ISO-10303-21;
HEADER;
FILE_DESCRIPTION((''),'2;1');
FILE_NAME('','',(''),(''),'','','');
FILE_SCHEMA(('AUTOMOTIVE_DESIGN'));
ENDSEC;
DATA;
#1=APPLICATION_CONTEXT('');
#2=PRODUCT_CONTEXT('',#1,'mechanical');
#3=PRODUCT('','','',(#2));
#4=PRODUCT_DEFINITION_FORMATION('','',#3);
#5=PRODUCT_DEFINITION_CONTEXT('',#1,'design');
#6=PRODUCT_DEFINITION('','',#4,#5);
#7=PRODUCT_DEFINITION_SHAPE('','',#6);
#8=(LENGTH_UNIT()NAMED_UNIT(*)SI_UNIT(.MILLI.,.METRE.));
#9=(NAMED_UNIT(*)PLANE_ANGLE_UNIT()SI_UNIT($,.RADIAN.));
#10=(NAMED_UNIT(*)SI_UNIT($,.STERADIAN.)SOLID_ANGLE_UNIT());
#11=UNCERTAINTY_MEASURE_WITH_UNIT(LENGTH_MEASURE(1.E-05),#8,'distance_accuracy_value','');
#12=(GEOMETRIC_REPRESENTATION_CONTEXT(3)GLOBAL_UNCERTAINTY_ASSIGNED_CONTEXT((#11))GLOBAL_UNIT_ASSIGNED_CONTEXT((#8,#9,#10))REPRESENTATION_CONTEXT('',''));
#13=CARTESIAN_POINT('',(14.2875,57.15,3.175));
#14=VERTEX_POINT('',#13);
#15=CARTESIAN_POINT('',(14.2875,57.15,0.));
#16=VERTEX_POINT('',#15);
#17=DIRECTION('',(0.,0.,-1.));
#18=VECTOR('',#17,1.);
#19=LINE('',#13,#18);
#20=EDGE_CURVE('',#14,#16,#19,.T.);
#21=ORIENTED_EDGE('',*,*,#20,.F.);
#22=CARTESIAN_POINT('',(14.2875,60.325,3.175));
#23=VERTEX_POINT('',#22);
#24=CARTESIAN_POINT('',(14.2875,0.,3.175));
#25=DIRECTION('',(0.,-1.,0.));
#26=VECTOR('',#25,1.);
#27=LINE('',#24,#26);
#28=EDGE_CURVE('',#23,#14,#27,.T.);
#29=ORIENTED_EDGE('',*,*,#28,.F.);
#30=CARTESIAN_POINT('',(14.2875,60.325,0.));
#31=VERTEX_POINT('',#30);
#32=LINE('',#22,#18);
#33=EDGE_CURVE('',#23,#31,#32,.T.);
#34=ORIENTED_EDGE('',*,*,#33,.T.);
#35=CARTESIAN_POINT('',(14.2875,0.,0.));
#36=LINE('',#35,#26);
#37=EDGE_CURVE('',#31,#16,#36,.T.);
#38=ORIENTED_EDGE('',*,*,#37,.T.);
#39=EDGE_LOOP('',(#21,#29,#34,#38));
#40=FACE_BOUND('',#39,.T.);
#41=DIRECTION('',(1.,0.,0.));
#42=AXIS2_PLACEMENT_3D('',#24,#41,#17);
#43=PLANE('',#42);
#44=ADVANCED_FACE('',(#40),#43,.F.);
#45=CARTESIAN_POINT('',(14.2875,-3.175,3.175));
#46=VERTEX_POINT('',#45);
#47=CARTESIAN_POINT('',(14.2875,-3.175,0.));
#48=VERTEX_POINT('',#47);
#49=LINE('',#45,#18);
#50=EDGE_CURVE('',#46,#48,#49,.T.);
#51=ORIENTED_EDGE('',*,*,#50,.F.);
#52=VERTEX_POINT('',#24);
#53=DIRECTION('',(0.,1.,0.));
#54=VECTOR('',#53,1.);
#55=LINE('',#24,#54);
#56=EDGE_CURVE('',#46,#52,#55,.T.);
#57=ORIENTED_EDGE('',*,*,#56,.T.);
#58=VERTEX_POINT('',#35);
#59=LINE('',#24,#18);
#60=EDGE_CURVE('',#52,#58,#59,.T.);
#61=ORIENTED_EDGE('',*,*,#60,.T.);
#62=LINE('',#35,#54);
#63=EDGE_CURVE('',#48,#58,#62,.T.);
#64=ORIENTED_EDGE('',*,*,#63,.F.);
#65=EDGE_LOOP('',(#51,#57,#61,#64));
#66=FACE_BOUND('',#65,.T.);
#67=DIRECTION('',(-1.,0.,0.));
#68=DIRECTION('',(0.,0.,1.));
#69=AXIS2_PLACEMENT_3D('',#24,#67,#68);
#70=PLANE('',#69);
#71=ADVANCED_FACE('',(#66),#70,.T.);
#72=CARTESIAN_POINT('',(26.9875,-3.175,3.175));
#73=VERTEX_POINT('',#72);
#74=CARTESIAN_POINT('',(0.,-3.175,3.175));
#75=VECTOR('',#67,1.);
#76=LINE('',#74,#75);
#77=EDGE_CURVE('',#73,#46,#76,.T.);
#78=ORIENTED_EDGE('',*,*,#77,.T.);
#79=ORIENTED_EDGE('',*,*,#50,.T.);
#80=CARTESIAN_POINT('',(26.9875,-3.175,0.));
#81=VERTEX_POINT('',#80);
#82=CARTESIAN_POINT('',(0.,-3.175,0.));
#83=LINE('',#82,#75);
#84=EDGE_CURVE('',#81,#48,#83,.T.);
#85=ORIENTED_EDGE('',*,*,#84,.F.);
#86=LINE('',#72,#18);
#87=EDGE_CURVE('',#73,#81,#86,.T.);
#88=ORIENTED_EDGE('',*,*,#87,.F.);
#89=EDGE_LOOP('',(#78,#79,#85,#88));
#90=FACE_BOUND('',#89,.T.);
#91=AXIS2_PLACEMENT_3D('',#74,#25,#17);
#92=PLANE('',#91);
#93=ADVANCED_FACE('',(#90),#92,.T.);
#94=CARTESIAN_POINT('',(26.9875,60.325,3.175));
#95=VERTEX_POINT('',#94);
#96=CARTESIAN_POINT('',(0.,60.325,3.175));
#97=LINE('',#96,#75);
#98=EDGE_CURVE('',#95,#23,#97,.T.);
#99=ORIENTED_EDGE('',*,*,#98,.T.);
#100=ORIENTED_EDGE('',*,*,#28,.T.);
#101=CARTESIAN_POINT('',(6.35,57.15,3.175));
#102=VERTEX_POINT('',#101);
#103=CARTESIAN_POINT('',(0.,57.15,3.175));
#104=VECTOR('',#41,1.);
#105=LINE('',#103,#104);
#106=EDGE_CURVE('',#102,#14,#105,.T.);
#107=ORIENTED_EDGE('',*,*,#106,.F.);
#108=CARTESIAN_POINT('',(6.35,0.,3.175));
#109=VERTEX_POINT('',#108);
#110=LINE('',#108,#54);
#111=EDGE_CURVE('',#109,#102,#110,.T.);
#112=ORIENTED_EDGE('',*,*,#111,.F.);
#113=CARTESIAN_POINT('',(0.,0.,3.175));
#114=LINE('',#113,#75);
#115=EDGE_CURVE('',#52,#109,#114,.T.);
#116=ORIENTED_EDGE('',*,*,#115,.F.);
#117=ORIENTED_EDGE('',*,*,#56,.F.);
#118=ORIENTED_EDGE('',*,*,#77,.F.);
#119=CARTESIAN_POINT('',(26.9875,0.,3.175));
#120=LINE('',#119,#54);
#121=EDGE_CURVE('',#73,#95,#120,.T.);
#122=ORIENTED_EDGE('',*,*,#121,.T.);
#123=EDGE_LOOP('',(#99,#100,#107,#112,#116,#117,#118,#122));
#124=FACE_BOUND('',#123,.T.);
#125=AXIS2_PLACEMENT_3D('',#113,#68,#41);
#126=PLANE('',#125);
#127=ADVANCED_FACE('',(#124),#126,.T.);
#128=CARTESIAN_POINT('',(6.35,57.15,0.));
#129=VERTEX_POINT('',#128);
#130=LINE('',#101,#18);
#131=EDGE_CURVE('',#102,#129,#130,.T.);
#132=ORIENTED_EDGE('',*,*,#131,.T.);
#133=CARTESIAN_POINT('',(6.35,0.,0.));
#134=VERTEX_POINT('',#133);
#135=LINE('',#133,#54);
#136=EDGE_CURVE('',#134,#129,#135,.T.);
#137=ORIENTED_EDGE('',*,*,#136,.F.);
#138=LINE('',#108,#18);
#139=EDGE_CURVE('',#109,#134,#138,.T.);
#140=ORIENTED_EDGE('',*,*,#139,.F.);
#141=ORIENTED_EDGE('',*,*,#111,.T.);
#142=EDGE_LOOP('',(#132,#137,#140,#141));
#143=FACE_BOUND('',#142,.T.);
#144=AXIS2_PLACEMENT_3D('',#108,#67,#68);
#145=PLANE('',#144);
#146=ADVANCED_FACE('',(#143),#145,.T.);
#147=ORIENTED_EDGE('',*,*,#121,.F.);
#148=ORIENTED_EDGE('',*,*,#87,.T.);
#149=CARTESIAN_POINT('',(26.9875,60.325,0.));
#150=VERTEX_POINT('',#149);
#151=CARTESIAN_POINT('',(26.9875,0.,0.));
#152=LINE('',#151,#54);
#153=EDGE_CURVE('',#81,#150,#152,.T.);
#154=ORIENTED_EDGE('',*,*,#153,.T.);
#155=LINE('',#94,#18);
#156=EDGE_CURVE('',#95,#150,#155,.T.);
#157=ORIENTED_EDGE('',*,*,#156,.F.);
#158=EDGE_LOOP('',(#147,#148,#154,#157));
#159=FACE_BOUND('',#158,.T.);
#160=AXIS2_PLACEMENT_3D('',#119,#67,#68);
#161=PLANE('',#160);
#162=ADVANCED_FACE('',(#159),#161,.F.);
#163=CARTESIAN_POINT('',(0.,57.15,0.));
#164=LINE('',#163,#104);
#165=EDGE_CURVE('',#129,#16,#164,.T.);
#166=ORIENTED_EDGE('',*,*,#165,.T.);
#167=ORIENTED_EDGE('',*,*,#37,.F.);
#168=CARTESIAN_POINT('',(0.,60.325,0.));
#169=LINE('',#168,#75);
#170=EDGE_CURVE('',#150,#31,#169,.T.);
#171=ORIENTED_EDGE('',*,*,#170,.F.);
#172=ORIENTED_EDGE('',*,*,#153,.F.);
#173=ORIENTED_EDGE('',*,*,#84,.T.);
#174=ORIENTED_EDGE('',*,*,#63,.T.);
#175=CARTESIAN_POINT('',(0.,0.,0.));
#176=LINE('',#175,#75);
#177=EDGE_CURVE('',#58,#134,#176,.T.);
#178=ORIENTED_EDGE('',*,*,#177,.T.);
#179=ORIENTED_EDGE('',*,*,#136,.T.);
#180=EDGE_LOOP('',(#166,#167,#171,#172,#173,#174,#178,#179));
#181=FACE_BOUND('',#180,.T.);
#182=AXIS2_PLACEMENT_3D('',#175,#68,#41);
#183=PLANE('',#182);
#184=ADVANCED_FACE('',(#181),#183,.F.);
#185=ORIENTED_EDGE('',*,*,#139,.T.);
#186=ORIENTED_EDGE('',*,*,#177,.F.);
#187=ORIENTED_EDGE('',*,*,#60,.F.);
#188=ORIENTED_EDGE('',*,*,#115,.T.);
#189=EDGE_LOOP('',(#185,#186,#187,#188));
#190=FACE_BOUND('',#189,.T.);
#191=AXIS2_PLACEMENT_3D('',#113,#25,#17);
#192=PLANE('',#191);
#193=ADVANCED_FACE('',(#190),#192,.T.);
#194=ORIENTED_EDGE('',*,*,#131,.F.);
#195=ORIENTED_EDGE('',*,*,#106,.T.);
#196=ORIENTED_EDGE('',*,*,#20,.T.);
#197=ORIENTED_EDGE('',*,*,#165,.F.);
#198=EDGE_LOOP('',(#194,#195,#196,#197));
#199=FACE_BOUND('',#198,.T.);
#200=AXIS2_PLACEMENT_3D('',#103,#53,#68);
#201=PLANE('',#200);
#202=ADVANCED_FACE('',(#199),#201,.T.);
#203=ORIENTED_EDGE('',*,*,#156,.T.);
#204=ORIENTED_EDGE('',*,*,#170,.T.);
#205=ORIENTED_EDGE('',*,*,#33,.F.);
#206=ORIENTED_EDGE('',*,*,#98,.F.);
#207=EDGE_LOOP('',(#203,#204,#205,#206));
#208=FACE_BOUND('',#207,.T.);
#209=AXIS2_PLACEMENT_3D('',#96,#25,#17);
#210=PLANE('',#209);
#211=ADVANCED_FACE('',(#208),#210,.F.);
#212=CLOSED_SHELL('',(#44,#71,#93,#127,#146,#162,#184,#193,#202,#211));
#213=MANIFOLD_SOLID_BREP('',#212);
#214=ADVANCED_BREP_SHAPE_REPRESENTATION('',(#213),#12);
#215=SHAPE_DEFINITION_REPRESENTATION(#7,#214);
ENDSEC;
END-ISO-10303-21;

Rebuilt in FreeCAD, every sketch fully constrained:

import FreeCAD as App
import Part
import Sketcher
Q = App.Units.Quantity


def add_polygon(sketch, points):
    """Adds a closed chain of lines whose ends are joined by coincident constraints."""
    first, n = sketch.GeometryCount, len(points)
    for a, b in zip(points, points[1:] + points[:1]):
        sketch.addGeometry(Part.LineSegment(App.Vector(*a, 0), App.Vector(*b, 0)), False)
    for i in range(n):
        sketch.addConstraint(Sketcher.Constraint("Coincident", first + i, 2, first + (i + 1) % n, 1))

doc = App.newDocument("Part")
body = doc.addObject("PartDesign::Body", "Body")

# Sketch on XY plane
sketch1 = body.newObject("Sketcher::SketchObject", "Sketch")
sketch1.AttachmentSupport = (doc.getObject("XY_Plane"), [""])
sketch1.MapMode = "FlatFace"
add_polygon(sketch1, [(14.3, -3.2), (27, -3.2), (27, 60.3), (14.3, 60.3), (14.3, 57.1), (6.3, 57.1), (6.3, 0), (14.3, 0)])  # lines 0-7
sketch1.addConstraint(Sketcher.Constraint("Horizontal", 0))
sketch1.addConstraint(Sketcher.Constraint("Vertical", 1))
sketch1.addConstraint(Sketcher.Constraint("Horizontal", 2))
sketch1.addConstraint(Sketcher.Constraint("Vertical", 3))
sketch1.addConstraint(Sketcher.Constraint("Horizontal", 4))
sketch1.addConstraint(Sketcher.Constraint("Vertical", 5))
sketch1.addConstraint(Sketcher.Constraint("Horizontal", 6))
sketch1.addConstraint(Sketcher.Constraint("Vertical", 7))
sketch1.addConstraint(Sketcher.Constraint("PointOnObject", 5, 2, -1))
sketch1.addConstraint(Sketcher.Constraint("Vertical", 3, 2, 6, 2))
sketch1.addConstraint(Sketcher.Constraint("Equal", 3, 7))
sketch1.addConstraint(Sketcher.Constraint("DistanceX", 0, 1, 0, 2, Q("0.5 in")))
sketch1.addConstraint(Sketcher.Constraint("DistanceY", 1, 1, 1, 2, Q("2.5 in")))
sketch1.addConstraint(Sketcher.Constraint("DistanceY", 5, 2, 5, 1, Q("2.25 in")))
sketch1.addConstraint(Sketcher.Constraint("DistanceX", 4, 2, 4, 1, Q("0.3125 in")))
sketch1.addConstraint(Sketcher.Constraint("DistanceX", -1, 1, 4, 2, Q("0.25 in")))
pad1 = body.newObject("PartDesign::Pad", "Pad")
pad1.Profile = sketch1
pad1.Length = Q("0.125 in")

doc.recompute()
